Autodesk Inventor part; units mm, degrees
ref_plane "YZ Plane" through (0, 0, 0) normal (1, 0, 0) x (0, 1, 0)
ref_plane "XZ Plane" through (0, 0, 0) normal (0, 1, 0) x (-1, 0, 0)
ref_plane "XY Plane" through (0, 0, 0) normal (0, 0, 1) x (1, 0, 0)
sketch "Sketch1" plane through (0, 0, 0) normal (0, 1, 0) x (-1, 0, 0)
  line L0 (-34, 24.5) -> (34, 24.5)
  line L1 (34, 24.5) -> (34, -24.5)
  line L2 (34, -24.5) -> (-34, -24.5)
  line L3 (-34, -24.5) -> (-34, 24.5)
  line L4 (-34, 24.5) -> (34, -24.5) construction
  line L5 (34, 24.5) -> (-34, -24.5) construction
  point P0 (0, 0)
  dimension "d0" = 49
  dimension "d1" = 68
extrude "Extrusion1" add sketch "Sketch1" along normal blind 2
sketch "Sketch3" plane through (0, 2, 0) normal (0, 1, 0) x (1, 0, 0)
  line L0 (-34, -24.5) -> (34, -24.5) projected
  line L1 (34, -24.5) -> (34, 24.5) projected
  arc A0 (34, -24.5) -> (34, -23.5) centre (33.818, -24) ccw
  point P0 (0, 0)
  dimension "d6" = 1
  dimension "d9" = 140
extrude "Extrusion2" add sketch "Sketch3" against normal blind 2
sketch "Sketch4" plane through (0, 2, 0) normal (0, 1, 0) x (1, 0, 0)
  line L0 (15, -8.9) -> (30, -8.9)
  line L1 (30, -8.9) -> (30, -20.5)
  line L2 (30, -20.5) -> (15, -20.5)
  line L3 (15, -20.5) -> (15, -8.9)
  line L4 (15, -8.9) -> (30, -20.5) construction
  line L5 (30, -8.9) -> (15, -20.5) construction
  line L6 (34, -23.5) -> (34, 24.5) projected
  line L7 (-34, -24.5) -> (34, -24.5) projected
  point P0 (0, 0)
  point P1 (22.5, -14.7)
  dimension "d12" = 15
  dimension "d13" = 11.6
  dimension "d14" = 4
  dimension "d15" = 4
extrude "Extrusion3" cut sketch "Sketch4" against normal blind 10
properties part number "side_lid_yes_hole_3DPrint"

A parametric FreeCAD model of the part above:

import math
import FreeCAD as App
import Part
import Sketcher
from FreeCAD import Vector


def add_polygon(sketch, points):
    """Adds a closed chain of lines whose ends are joined by coincident constraints."""
    first, n = sketch.GeometryCount, len(points)
    for a, b in zip(points, points[1:] + points[:1]):
        sketch.addGeometry(Part.LineSegment(App.Vector(*a, 0), App.Vector(*b, 0)), False)
    for i in range(n):
        sketch.addConstraint(Sketcher.Constraint("Coincident", first + i, 2, first + (i + 1) % n, 1))

doc = App.newDocument("Part")
body = doc.addObject("PartDesign::Body", "Body")

# Sketch on XZ plane
sketch1 = body.newObject("Sketcher::SketchObject", "Sketch")
sketch1.AttachmentSupport = (doc.getObject("XZ_Plane"), [""])
sketch1.MapMode = "FlatFace"
add_polygon(sketch1, [(-34, 24.5), (34, 24.5), (34, -24.5), (-34, -24.5)])  # lines 0-3
sketch1.addConstraint(Sketcher.Constraint("Horizontal", 0))
sketch1.addConstraint(Sketcher.Constraint("Vertical", 1))
sketch1.addConstraint(Sketcher.Constraint("Horizontal", 2))
sketch1.addConstraint(Sketcher.Constraint("Vertical", 3))
sketch1.addConstraint(Sketcher.Constraint("Symmetric", 0, 2, 2, 2, -1, 1))
sketch1.addConstraint(Sketcher.Constraint("DistanceX", 0, 1, 0, 2, 68.0))
sketch1.addConstraint(Sketcher.Constraint("DistanceY", 1, 2, 1, 1, 49.0))
pad1 = body.newObject("PartDesign::Pad", "Pad")
pad1.Profile = sketch1
pad1.Length = 2
pad1.Reversed = True

# Sketch on XZ plane
sketch2 = body.newObject("Sketcher::SketchObject", "Sketch001")
sketch2.AttachmentSupport = (doc.getObject("XZ_Plane"), [""])
sketch2.MapMode = "FlatFace"
sketch2.AttachmentOffset = App.Placement(Vector(0, 0, -2), App.Rotation())
sketch2.addGeometry(Part.LineSegment(Vector(34, 23.5, 0), Vector(34, 24.5, 0)), False)
sketch2.addGeometry(Part.ArcOfCircle(Part.Circle(Vector(33.818, 24, 0), Vector(0, 0, 1), 0.532094), math.radians(-69.998494), math.radians(69.998494)), False)
sketch2.addConstraint(Sketcher.Constraint("Coincident", 0, 1, 1, 1))
sketch2.addConstraint(Sketcher.Constraint("Coincident", 1, 2, 0, 2))
sketch2.addConstraint(Sketcher.Constraint("Vertical", 0))
sketch2.addConstraint(Sketcher.Constraint("DistanceY", 0, 1, 0, 2, 1.0))
sketch2.addConstraint(Sketcher.Constraint("DistanceY", -1, 1, 1, 3, 24.0))
sketch2.addConstraint(Sketcher.Constraint("DistanceX", -1, 1, 0, 1, 34.0))
sketch2.addConstraint(Sketcher.Constraint("Radius", 1, 0.532))
pad2 = body.newObject("PartDesign::Pad", "Pad001")
pad2.Profile = sketch2
pad2.Length = 2

# Sketch on XZ plane
sketch3 = body.newObject("Sketcher::SketchObject", "Sketch002")
sketch3.AttachmentSupport = (doc.getObject("XZ_Plane"), [""])
sketch3.MapMode = "FlatFace"
sketch3.AttachmentOffset = App.Placement(Vector(0, 0, -2), App.Rotation())
add_polygon(sketch3, [(30, 8.9), (15, 8.9), (15, 20.5), (30, 20.5)])  # lines 0-3
sketch3.addConstraint(Sketcher.Constraint("Horizontal", 0))
sketch3.addConstraint(Sketcher.Constraint("Vertical", 1))
sketch3.addConstraint(Sketcher.Constraint("Horizontal", 2))
sketch3.addConstraint(Sketcher.Constraint("Vertical", 3))
sketch3.addConstraint(Sketcher.Constraint("DistanceX", 0, 2, 0, 1, 15.0))
sketch3.addConstraint(Sketcher.Constraint("DistanceY", 1, 1, 1, 2, 11.6))
sketch3.addConstraint(Sketcher.Constraint("DistanceX", -1, 1, 0, 2, 15.0))
sketch3.addConstraint(Sketcher.Constraint("DistanceY", -1, 1, 0, 2, 8.9))
pocket1 = body.newObject("PartDesign::Pocket", "Pocket")
pocket1.Profile = sketch3
pocket1.Length = 10
pocket1.Reversed = True

doc.recompute()
